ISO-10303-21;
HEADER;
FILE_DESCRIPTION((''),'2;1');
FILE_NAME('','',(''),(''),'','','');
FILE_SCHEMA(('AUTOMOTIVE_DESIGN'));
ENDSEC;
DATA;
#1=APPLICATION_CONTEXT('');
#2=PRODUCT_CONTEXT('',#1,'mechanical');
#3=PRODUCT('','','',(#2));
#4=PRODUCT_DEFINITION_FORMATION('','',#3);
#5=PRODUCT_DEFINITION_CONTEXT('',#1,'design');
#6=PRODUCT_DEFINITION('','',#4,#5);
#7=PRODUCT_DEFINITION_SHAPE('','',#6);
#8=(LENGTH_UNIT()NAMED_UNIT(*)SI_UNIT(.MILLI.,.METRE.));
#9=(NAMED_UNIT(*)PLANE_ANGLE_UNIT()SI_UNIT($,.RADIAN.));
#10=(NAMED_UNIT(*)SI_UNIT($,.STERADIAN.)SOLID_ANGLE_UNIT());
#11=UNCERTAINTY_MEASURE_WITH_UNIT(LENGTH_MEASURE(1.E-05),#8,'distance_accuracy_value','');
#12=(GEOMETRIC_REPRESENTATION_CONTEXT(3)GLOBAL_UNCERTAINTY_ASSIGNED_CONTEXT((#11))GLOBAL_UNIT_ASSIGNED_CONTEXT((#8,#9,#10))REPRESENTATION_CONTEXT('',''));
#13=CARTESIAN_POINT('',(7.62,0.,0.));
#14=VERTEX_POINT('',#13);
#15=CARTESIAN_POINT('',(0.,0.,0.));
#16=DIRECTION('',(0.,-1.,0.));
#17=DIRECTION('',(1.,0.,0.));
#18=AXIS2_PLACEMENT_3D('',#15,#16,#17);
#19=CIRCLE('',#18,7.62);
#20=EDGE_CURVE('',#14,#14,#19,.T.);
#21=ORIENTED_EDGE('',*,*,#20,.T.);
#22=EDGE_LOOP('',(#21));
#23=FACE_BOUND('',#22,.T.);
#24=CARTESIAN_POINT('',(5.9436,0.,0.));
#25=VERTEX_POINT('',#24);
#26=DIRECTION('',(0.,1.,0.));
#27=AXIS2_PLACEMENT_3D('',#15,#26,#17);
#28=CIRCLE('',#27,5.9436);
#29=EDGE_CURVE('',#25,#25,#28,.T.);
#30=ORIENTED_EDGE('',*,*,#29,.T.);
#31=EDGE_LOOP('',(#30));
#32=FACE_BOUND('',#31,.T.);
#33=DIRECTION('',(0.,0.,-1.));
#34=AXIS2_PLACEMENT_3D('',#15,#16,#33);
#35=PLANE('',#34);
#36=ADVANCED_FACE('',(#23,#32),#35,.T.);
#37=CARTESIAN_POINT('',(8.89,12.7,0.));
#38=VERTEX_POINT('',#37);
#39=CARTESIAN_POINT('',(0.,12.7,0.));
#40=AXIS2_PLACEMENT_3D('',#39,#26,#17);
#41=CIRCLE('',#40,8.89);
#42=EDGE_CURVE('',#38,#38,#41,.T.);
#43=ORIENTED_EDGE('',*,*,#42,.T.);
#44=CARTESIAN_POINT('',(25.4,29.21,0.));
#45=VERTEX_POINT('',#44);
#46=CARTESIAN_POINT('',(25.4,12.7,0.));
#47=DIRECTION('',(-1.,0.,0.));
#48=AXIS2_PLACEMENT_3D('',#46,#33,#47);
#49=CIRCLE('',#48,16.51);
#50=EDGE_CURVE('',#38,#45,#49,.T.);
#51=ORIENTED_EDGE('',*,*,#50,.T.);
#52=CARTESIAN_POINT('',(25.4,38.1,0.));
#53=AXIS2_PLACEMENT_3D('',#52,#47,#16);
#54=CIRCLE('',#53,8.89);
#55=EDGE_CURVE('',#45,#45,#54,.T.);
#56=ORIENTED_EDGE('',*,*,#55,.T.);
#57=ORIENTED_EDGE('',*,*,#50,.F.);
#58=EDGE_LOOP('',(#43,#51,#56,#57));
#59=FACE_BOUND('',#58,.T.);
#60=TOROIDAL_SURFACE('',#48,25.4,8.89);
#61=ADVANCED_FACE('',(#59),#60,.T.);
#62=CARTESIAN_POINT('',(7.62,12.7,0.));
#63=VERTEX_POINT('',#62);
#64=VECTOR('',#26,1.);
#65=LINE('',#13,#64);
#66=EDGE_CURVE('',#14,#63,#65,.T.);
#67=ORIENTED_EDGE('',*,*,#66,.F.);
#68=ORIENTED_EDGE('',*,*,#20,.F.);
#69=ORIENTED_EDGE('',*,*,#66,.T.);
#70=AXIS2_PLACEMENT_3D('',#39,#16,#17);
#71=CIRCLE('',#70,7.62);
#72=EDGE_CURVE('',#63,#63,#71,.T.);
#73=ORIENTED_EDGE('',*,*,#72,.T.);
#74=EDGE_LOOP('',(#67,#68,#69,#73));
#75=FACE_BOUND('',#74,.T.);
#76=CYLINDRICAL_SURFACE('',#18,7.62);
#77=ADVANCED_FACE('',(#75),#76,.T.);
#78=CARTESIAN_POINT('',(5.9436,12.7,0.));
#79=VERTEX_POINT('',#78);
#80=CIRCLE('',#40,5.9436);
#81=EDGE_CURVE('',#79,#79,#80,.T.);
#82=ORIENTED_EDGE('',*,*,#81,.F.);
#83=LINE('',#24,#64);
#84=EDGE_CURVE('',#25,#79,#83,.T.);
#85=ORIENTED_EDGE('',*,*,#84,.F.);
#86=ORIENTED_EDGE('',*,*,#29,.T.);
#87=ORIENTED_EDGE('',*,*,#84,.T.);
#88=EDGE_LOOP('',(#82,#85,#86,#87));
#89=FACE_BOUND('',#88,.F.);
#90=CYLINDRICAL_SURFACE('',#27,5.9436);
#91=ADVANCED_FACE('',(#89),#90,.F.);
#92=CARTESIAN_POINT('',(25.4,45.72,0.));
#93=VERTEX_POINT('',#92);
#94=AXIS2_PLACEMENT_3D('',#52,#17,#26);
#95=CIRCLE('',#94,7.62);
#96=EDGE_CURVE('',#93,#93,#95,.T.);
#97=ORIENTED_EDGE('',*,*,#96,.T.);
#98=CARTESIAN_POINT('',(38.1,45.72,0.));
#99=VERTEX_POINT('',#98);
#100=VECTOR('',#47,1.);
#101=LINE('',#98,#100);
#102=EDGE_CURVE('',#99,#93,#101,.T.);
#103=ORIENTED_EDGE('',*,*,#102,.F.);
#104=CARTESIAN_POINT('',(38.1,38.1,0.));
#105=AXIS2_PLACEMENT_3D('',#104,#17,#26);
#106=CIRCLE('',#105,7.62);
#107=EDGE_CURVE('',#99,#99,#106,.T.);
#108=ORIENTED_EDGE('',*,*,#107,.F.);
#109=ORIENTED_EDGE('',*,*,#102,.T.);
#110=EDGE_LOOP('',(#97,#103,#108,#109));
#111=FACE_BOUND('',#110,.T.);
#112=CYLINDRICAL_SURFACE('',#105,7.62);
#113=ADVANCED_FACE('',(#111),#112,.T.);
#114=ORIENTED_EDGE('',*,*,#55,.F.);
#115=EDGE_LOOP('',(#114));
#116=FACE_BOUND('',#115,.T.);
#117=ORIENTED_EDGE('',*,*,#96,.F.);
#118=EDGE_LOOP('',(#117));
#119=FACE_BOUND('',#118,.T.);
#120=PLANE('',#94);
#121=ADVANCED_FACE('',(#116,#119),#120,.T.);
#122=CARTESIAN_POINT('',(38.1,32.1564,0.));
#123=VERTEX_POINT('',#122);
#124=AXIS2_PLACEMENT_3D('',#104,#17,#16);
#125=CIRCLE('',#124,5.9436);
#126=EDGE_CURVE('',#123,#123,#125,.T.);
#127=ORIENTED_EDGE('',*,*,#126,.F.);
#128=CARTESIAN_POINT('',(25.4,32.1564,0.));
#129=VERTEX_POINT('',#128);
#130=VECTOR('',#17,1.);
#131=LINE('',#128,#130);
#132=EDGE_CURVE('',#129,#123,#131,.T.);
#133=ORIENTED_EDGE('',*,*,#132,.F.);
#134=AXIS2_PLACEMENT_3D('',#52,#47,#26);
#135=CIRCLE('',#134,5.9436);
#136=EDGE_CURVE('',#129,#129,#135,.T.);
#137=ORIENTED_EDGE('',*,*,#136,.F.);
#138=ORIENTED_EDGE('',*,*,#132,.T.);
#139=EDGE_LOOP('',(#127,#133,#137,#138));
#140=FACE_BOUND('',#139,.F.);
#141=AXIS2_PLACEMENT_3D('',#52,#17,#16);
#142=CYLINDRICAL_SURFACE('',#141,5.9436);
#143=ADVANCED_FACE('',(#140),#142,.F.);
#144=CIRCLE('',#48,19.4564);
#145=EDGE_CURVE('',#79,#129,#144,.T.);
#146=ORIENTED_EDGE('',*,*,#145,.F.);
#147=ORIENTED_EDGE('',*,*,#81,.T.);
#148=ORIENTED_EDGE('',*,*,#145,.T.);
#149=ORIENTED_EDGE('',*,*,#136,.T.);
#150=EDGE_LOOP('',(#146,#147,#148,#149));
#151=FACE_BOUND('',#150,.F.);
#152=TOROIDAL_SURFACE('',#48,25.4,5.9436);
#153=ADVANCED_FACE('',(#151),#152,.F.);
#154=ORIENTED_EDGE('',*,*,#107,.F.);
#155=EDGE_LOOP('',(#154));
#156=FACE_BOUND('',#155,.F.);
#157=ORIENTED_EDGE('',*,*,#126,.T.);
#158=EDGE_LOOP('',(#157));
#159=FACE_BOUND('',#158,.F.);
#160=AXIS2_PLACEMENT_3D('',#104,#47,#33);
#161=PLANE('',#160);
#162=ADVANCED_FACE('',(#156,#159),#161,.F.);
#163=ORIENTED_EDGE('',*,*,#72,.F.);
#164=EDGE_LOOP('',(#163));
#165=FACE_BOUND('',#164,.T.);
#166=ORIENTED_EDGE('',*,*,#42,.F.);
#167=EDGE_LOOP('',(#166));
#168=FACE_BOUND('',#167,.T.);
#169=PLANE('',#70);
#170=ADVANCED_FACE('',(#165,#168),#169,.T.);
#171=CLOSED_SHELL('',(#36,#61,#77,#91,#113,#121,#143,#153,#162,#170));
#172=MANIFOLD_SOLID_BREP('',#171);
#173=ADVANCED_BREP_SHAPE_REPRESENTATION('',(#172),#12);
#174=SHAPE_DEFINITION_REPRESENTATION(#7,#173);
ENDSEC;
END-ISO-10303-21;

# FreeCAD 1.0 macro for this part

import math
import FreeCAD as App
import Part
import Sketcher
from FreeCAD import Vector
Q = App.Units.Quantity

doc = App.newDocument("Part")
params = doc.addObject("Spreadsheet::Sheet", "Params")
for row, (alias, value) in enumerate([
    ("sketch1_diameter", "0.7 in"),
    ("sketch1_diameter2", "0.468 in"),
    ("sketch2_radius", "1 in"),
    ("sketch2_width", "0.5 in"),
    ("sketch3_diameter", "0.7 in"),
    ("sketch3_diameter2", "0.6 in"),
    ("pocket1_length", "0.5 in"),
    ("sketch4_diameter", "0.7 in"),
    ("sketch4_diameter2", "0.6 in"),
    ("pocket2_length", "0.5 in"),
], start=1):
    params.set(f"A{row}", alias)
    params.set(f"B{row}", "=" + value)
    params.setAlias(f"B{row}", alias)

body = doc.addObject("PartDesign::Body", "Body")

# Sketch on XZ plane
sketch1 = body.newObject("Sketcher::SketchObject", "Sketch")
sketch1.AttachmentSupport = (doc.getObject("XZ_Plane"), [""])
sketch1.MapMode = "FlatFace"
sketch1.addGeometry([
    Part.Circle(Vector(0, 0, 0), Vector(0, 0, 1), 9),
    Part.Circle(Vector(0, 0, 0), Vector(0, 0, 1), 6),
], False)
sketch1.addConstraint([
    Sketcher.Constraint("Coincident", 0, 3, -1, 1),
    Sketcher.Constraint("Coincident", 1, 3, -1, 1),
    Sketcher.Constraint("Diameter", 0, Q("0.7 in")),
    Sketcher.Constraint("Diameter", 1, Q("0.468 in")),
])
sketch1.setExpression("Constraints[2]", "Params.sketch1_diameter")
sketch1.setExpression("Constraints[3]", "Params.sketch1_diameter2")

# Sketch on XY plane
sketch2 = body.newObject("Sketcher::SketchObject", "Sketch001")
sketch2.AttachmentSupport = (doc.getObject("XY_Plane"), [""])
sketch2.MapMode = "FlatFace"
sketch2.addGeometry([
    Part.LineSegment(Vector(0, 0, 0), Vector(0, 13, 0)),
    Part.ArcOfCircle(Part.Circle(Vector(25, 13, 0), Vector(0, 0, 1), 25), math.radians(90), math.radians(180)),
    Part.LineSegment(Vector(25, 38, 0), Vector(38, 38, 0)),
], False)
sketch2.addConstraint([
    Sketcher.Constraint("Tangent", 0, 2, 1, 2),
    Sketcher.Constraint("Tangent", 1, 1, 2, 1),
    Sketcher.Constraint("Vertical", 0),
    Sketcher.Constraint("Horizontal", 2),
    Sketcher.Constraint("Coincident", 0, 1, -1, 1),
    Sketcher.Constraint("Equal", 2, 0),
    Sketcher.Constraint("Radius", 1, Q("1 in")),
    Sketcher.Constraint("DistanceX", 2, 1, 2, 2, Q("0.5 in")),
])
sketch2.setExpression("Constraints[6]", "Params.sketch2_radius")
sketch2.setExpression("Constraints[7]", "Params.sketch2_width")
doc.recompute()

additivepipe = body.newObject("PartDesign::AdditivePipe", "AdditivePipe")
additivepipe.Profile = sketch1
additivepipe.Spine = (sketch2, ["Edge1", "Edge2", "Edge3"])

# Sketch on XZ plane
sketch3 = body.newObject("Sketcher::SketchObject", "Sketch002")
sketch3.AttachmentSupport = (doc.getObject("XZ_Plane"), [""])
sketch3.MapMode = "FlatFace"
sketch3.addGeometry([
    Part.Circle(Vector(0, 0, 0), Vector(0, 0, 1), 9),
    Part.Circle(Vector(0, 0, 0), Vector(0, 0, 1), 8),
], False)
sketch3.addConstraint([
    Sketcher.Constraint("Coincident", 0, 3, -1, 1),
    Sketcher.Constraint("Coincident", 1, 3, -1, 1),
    Sketcher.Constraint("Diameter", 0, Q("0.7 in")),
    Sketcher.Constraint("Diameter", 1, Q("0.6 in")),
])
sketch3.setExpression("Constraints[2]", "Params.sketch3_diameter")
sketch3.setExpression("Constraints[3]", "Params.sketch3_diameter2")
pocket1 = body.newObject("PartDesign::Pocket", "Pocket")
pocket1.Profile = sketch3
pocket1.setExpression("Length", "Params.pocket1_length")

# Sketch on YZ plane
sketch4 = body.newObject("Sketcher::SketchObject", "Sketch003")
sketch4.AttachmentSupport = (doc.getObject("YZ_Plane"), [""])
sketch4.MapMode = "FlatFace"
sketch4.AttachmentOffset = App.Placement(Vector(0, 0, 1.5 * 25.4), App.Rotation())
sketch4.addGeometry([
    Part.Circle(Vector(38, 0, 0), Vector(0, 0, 1), 9),
    Part.Circle(Vector(38, 0, 0), Vector(0, 0, 1), 8),
], False)
sketch4.addConstraint([
    Sketcher.Constraint("Coincident", 1, 3, 0, 3),
    Sketcher.Constraint("PointOnObject", 0, 3, -1),
    Sketcher.Constraint("Diameter", 0, Q("0.7 in")),
    Sketcher.Constraint("Diameter", 1, Q("0.6 in")),
    Sketcher.Constraint("DistanceX", -1, 1, 0, 3, Q("1.5 in")),
])
sketch4.setExpression("Constraints[2]", "Params.sketch4_diameter")
sketch4.setExpression("Constraints[3]", "Params.sketch4_diameter2")
pocket2 = body.newObject("PartDesign::Pocket", "Pocket001")
pocket2.Profile = sketch4
pocket2.setExpression("Length", "Params.pocket2_length")

doc.recompute()
